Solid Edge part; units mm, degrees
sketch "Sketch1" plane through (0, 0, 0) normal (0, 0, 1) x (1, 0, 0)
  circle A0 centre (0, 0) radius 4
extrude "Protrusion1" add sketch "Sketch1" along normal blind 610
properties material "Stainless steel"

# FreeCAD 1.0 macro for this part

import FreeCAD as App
import Part
import Sketcher
from FreeCAD import Vector
Q = App.Units.Quantity

doc = App.newDocument("Part")
params = doc.addObject("Spreadsheet::Sheet", "Params")
for row, (alias, value) in enumerate([
    ("sketch1_diameter", "8 mm"),
    ("pad1_length", "610 mm"),
], start=1):
    params.set(f"A{row}", alias)
    params.set(f"B{row}", "=" + value)
    params.setAlias(f"B{row}", alias)

body = doc.addObject("PartDesign::Body", "Body")

# Sketch on XY plane
sketch1 = body.newObject("Sketcher::SketchObject", "Sketch")
sketch1.AttachmentSupport = (doc.getObject("XY_Plane"), [""])
sketch1.MapMode = "FlatFace"
sketch1.addGeometry(Part.Circle(Vector(0, 0, 0), Vector(0, 0, 1), 4), False)
sketch1.addConstraint([
    Sketcher.Constraint("Coincident", 0, 3, -1, 1),
    Sketcher.Constraint("Diameter", 0, Q("8 mm")),
])
sketch1.setExpression("Constraints[1]", "Params.sketch1_diameter")
pad1 = body.newObject("PartDesign::Pad", "Pad")
pad1.Profile = sketch1
pad1.setExpression("Length", "Params.pad1_length")

doc.recompute()
